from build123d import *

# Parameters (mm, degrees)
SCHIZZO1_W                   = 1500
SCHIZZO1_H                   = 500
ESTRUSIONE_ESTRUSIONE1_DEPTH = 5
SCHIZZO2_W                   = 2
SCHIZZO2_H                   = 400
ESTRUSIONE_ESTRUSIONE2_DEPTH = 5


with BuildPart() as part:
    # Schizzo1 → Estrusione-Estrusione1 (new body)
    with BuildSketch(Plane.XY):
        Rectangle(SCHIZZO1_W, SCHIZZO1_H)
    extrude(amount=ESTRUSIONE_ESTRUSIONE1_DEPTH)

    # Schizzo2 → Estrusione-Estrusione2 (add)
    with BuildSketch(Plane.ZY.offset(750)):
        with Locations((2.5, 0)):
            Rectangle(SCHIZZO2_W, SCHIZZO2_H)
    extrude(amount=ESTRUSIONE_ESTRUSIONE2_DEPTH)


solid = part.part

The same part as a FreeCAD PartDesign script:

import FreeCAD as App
import Part
import Sketcher
from FreeCAD import Vector
Q = App.Units.Quantity


def add_polygon(sketch, points):
    """Adds a closed chain of lines whose ends are joined by coincident constraints."""
    first, n = sketch.GeometryCount, len(points)
    for a, b in zip(points, points[1:] + points[:1]):
        sketch.addGeometry(Part.LineSegment(App.Vector(*a, 0), App.Vector(*b, 0)), False)
    for i in range(n):
        sketch.addConstraint(Sketcher.Constraint("Coincident", first + i, 2, first + (i + 1) % n, 1))

doc = App.newDocument("Part")
params = doc.addObject("Spreadsheet::Sheet", "Params")
for row, (alias, value) in enumerate([
    ("sketch1_width", "1500 mm"),
    ("sketch1_height", "500 mm"),
    ("pad1_length", "5 mm"),
    ("sketch2_width", "400 mm"),
    ("sketch2_height", "2 mm"),
    ("pad2_length", "5 mm"),
], start=1):
    params.set(f"A{row}", alias)
    params.set(f"B{row}", "=" + value)
    params.setAlias(f"B{row}", alias)

body = doc.addObject("PartDesign::Body", "Body")

# Sketch on XY plane
sketch1 = body.newObject("Sketcher::SketchObject", "Sketch")
sketch1.AttachmentSupport = (doc.getObject("XY_Plane"), [""])
sketch1.MapMode = "FlatFace"
add_polygon(sketch1, [(-750, 250), (-750, -250), (750, -250), (750, 250)])  # lines 0-3
sketch1.addConstraint([
    Sketcher.Constraint("Vertical", 0),
    Sketcher.Constraint("Horizontal", 1),
    Sketcher.Constraint("Vertical", 2),
    Sketcher.Constraint("Horizontal", 3),
    Sketcher.Constraint("Symmetric", 0, 2, 2, 2, -1, 1),
    Sketcher.Constraint("DistanceX", 1, 1, 1, 2, Q("1500 mm")),
    Sketcher.Constraint("DistanceY", 0, 2, 0, 1, Q("500 mm")),
])
sketch1.setExpression("Constraints[9]", "Params.sketch1_width")
sketch1.setExpression("Constraints[10]", "Params.sketch1_height")
pad1 = body.newObject("PartDesign::Pad", "Pad")
pad1.Profile = sketch1
pad1.setExpression("Length", "Params.pad1_length")

# Sketch on YZ plane
sketch2 = body.newObject("Sketcher::SketchObject", "Sketch001")
sketch2.AttachmentSupport = (doc.getObject("YZ_Plane"), [""])
sketch2.MapMode = "FlatFace"
sketch2.AttachmentOffset = App.Placement(Vector(0, 0, -750), App.Rotation())
add_polygon(sketch2, [(200, 1.5), (-200, 1.5), (-200, 3.5), (200, 3.5)])  # lines 0-3
sketch2.addConstraint([
    Sketcher.Constraint("Horizontal", 0),
    Sketcher.Constraint("Vertical", 1),
    Sketcher.Constraint("Horizontal", 2),
    Sketcher.Constraint("Vertical", 3),
    Sketcher.Constraint("DistanceX", 0, 2, 0, 1, Q("400 mm")),
    Sketcher.Constraint("DistanceY", 1, 1, 1, 2, Q("2 mm")),
    Sketcher.Constraint("DistanceX", 0, 2, -1, 1, Q("200 mm")),
    Sketcher.Constraint("DistanceY", -1, 1, 0, 2, Q("1.5 mm")),
])
sketch2.setExpression("Constraints[8]", "Params.sketch2_width")
sketch2.setExpression("Constraints[9]", "Params.sketch2_height")
pad2 = body.newObject("PartDesign::Pad", "Pad001")
pad2.Profile = sketch2
pad2.setExpression("Length", "Params.pad2_length")
pad2.Reversed = True

doc.recompute()
